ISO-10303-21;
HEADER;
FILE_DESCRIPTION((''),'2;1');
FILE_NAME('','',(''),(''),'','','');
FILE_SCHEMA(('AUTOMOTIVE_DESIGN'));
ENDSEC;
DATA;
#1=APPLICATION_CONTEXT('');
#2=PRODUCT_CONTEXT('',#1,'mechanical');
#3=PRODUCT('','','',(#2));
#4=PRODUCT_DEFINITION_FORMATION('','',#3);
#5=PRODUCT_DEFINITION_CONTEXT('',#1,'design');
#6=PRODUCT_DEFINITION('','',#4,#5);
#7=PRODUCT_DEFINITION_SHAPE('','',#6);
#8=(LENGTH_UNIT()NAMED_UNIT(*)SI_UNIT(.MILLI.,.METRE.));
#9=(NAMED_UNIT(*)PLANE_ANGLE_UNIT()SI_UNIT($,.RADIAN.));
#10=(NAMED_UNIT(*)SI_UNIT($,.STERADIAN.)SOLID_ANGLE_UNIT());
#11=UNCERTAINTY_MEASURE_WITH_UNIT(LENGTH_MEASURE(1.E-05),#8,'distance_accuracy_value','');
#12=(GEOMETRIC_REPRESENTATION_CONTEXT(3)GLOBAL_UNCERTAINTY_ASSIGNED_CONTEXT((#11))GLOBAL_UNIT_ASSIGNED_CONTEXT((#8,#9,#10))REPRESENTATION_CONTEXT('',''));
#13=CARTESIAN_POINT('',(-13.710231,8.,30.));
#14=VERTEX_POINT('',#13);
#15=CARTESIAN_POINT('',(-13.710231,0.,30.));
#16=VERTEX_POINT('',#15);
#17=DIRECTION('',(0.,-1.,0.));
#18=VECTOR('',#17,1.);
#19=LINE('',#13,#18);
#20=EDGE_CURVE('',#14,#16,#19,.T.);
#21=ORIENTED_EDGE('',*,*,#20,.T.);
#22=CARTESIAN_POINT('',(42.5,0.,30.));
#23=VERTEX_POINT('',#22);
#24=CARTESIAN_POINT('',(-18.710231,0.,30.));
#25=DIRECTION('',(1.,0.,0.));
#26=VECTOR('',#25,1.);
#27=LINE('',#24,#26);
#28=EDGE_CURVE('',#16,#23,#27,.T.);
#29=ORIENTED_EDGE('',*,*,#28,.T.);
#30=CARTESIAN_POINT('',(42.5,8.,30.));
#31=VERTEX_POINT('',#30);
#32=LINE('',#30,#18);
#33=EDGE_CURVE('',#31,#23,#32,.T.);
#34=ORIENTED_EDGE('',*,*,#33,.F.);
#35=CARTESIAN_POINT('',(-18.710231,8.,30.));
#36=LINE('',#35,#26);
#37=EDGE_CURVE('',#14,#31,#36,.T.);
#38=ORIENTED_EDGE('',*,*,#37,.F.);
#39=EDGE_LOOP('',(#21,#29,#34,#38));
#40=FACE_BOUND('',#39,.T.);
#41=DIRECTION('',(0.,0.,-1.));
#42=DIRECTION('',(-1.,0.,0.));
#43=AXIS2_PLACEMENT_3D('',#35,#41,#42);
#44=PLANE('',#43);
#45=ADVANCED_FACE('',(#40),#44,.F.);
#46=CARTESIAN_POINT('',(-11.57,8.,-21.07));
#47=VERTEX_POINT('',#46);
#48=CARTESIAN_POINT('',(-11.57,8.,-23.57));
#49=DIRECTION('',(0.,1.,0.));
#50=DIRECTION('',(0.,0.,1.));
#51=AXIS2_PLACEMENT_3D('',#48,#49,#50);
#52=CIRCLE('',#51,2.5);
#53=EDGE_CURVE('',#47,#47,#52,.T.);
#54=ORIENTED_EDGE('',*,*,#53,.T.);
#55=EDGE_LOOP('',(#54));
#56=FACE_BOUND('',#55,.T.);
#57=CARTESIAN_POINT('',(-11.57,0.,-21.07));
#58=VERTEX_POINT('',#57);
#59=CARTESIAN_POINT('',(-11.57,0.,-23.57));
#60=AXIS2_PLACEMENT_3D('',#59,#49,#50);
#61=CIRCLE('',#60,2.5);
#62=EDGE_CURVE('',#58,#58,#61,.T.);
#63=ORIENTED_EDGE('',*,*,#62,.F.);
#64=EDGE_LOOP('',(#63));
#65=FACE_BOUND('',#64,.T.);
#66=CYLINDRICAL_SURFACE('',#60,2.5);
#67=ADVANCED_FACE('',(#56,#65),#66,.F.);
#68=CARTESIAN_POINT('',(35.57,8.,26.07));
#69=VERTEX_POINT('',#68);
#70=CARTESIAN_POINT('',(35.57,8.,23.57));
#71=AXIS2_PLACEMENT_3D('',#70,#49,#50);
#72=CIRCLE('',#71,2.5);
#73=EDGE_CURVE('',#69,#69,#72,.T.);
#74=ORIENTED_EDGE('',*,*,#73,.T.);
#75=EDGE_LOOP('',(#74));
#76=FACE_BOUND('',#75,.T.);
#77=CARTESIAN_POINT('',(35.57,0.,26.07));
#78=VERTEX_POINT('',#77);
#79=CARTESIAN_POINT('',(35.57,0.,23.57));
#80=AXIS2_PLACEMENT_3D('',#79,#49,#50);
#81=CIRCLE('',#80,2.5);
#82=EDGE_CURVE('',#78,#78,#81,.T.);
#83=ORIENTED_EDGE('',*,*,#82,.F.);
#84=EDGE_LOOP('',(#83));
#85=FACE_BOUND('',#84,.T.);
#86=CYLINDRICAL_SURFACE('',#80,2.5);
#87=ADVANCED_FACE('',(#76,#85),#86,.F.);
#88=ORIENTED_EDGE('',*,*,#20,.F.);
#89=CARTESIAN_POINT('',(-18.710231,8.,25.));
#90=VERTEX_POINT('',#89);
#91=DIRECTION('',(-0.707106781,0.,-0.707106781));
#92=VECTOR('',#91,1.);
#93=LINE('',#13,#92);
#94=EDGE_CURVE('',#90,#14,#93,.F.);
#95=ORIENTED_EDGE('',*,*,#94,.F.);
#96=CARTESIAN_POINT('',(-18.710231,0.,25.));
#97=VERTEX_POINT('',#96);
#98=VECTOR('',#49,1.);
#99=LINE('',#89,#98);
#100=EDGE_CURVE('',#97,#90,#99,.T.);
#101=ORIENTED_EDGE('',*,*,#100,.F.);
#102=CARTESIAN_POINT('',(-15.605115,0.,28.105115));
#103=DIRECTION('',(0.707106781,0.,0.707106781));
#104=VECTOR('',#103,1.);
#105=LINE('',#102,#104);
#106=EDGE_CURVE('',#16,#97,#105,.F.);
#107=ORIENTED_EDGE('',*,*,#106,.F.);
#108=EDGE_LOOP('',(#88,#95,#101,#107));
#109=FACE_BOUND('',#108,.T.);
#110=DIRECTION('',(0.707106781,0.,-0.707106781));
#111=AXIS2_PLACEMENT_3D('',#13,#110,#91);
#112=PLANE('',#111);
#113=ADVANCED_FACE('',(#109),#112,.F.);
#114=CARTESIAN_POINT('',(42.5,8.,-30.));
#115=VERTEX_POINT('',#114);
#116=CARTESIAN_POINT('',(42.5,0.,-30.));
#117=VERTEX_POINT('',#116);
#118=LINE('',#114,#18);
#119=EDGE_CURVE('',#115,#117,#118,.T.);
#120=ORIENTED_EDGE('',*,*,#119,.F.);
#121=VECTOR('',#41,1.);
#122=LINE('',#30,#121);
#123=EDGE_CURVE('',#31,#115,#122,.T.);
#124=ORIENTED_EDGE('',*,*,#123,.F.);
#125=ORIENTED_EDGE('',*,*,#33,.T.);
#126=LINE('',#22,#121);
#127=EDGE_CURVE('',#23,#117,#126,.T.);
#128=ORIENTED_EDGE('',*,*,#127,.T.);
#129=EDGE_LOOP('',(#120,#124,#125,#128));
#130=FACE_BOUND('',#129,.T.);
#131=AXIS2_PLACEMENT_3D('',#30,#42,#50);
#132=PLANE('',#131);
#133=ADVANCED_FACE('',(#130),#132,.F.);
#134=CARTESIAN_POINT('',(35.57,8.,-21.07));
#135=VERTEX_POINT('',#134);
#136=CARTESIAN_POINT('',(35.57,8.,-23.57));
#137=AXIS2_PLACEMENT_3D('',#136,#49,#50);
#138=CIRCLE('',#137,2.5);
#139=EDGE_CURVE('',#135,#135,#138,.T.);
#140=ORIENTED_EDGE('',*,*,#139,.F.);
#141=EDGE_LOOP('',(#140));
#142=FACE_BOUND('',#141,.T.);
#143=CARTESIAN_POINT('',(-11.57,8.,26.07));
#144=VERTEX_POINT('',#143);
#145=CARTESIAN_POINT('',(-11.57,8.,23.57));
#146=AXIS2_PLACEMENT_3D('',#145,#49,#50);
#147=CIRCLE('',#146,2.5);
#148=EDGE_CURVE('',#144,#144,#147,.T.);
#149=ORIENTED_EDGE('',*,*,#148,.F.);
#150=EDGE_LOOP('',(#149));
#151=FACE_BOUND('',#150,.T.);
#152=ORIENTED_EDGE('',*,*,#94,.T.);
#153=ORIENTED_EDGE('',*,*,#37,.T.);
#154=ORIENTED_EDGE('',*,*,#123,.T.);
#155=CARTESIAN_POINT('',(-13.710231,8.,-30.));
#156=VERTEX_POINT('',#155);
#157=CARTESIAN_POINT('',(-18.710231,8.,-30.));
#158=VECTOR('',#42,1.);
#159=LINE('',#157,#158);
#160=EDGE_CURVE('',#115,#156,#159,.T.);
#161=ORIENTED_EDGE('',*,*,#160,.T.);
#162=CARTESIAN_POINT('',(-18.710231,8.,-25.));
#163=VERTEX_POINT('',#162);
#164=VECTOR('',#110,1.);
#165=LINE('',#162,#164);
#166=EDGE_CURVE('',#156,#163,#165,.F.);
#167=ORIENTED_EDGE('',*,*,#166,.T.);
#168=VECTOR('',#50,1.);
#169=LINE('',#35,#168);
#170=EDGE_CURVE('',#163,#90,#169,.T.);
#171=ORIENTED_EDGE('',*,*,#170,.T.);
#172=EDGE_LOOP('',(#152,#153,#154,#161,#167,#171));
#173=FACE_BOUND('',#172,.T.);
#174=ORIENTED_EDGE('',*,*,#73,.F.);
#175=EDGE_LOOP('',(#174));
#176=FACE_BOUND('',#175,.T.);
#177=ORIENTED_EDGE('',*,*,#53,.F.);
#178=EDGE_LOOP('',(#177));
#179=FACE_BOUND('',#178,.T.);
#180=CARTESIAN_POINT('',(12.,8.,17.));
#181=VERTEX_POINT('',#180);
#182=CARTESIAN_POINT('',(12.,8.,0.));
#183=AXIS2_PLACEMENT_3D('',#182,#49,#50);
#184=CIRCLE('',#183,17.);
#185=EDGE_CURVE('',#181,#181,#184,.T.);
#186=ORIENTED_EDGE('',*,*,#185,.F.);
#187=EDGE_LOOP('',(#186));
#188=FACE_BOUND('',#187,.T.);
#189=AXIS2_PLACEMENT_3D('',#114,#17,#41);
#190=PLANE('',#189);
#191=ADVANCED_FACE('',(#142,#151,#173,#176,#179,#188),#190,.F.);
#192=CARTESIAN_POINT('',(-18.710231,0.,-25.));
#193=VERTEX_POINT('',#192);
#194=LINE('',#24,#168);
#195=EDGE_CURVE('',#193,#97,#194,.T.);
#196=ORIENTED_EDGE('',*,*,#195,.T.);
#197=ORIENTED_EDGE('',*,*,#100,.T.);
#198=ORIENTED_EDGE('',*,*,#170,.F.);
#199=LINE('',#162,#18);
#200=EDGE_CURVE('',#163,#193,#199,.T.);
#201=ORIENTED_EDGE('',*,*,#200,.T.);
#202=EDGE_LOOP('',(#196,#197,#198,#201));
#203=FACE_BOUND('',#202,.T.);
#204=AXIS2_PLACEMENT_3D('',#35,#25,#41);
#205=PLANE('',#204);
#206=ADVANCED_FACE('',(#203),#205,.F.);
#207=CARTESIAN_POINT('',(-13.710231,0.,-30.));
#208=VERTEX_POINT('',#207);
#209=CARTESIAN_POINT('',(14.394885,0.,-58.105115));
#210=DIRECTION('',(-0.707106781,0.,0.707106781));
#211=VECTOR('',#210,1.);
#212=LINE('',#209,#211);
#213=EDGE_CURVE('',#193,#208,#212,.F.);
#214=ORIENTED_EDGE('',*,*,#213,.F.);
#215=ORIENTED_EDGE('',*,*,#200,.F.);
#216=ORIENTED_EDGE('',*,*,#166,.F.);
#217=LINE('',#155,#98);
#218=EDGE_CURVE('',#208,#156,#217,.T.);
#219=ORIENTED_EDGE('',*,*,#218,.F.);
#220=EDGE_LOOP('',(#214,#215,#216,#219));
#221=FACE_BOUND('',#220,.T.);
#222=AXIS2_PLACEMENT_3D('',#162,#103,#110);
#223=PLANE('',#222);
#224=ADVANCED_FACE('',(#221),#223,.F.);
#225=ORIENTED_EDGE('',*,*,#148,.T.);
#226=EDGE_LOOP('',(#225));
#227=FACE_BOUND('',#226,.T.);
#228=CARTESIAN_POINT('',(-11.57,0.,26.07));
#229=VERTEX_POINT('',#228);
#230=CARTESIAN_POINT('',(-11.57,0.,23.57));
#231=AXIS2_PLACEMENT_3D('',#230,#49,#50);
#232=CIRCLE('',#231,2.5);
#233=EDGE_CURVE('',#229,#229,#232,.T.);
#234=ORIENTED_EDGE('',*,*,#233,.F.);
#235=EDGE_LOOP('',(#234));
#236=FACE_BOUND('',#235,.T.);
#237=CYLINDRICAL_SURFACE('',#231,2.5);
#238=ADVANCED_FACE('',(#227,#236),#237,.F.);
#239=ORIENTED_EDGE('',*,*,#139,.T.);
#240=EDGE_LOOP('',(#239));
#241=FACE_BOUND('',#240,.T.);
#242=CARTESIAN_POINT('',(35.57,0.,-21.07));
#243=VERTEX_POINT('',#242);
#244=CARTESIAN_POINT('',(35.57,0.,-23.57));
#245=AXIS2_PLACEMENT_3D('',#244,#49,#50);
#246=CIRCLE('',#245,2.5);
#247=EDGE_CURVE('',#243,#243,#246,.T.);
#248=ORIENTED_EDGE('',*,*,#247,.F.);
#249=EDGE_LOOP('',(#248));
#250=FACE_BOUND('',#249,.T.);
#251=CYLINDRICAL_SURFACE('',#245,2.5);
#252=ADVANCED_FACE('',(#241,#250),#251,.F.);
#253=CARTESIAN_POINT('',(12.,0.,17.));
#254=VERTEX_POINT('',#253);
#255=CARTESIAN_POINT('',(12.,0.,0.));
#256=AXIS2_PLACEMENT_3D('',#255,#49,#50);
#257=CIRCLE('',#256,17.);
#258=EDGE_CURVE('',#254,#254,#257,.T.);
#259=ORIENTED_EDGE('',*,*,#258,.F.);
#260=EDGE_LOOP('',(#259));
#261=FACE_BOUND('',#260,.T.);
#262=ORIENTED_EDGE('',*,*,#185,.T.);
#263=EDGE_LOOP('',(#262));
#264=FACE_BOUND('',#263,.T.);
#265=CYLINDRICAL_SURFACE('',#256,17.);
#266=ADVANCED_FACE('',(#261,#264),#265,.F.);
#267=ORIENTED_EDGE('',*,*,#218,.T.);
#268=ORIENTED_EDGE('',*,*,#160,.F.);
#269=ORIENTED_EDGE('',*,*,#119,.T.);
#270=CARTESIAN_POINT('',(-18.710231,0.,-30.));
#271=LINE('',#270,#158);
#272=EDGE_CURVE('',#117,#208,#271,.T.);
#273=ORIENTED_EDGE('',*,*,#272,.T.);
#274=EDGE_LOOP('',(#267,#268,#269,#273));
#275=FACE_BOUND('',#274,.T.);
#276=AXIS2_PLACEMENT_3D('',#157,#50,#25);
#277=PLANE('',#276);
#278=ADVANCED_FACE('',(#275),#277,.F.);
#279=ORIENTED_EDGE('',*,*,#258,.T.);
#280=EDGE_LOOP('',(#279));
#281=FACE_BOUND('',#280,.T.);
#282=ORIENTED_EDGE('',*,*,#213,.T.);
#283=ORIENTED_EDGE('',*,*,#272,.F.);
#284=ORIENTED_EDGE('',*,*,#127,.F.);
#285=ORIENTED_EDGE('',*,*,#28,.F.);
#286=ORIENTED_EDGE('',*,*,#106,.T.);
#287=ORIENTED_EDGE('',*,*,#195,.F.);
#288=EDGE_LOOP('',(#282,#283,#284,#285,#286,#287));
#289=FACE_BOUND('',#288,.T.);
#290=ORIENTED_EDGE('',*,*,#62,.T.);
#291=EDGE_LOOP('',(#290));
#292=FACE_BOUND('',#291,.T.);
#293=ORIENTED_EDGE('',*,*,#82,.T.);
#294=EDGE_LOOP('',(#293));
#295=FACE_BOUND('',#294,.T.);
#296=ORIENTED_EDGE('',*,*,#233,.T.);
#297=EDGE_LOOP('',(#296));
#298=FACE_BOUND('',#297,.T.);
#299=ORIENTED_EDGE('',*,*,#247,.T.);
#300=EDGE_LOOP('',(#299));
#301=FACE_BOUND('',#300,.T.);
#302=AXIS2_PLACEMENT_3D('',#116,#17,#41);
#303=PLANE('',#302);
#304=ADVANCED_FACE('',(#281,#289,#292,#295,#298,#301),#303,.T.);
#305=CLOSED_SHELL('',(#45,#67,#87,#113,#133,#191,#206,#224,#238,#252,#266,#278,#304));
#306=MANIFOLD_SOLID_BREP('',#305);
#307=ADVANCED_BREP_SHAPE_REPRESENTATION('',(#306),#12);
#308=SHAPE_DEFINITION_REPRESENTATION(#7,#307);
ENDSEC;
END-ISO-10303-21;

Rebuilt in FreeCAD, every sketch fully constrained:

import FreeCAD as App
import Part
import Sketcher
from FreeCAD import Vector


def edges_at(feature, points):
    """Names of the edges that pass closest to the given points."""
    edges = feature.Shape.Edges
    near = lambda p: min(range(len(edges)), key=lambda i: edges[i].distToShape(Part.Vertex(*p))[0])
    return sorted({f"Edge{near(p) + 1}" for p in points})

doc = App.newDocument("Part")
body = doc.addObject("PartDesign::Body", "Body")

# Sketch on XZ plane
sketch1 = doc.addObject("Sketcher::SketchObject", "Sketch")
body.addObject(sketch1)
sketch1.AttachmentSupport = (doc.XZ_Plane, [""])
sketch1.MapMode = "FlatFace"
sketch1.addGeometry(Part.LineSegment(Vector(-18.710231, -30, 0), Vector(-18.710231, 30, 0)), False)
sketch1.addGeometry(Part.LineSegment(Vector(-18.710231, 30, 0), Vector(42.5, 30, 0)), False)
sketch1.addGeometry(Part.LineSegment(Vector(42.5, 30, 0), Vector(42.5, -30, 0)), False)
sketch1.addGeometry(Part.LineSegment(Vector(42.5, -30, 0), Vector(-18.710231, -30, 0)), False)
sketch1.addConstraint(Sketcher.Constraint("Coincident", 0, 2, 1, 1))
sketch1.addConstraint(Sketcher.Constraint("Coincident", 1, 2, 2, 1))
sketch1.addConstraint(Sketcher.Constraint("Coincident", 2, 2, 3, 1))
sketch1.addConstraint(Sketcher.Constraint("Coincident", 3, 2, 0, 1))
sketch1.addConstraint(Sketcher.Constraint("Vertical", 0))
sketch1.addConstraint(Sketcher.Constraint("Horizontal", 1))
sketch1.addConstraint(Sketcher.Constraint("Vertical", 2))
sketch1.addConstraint(Sketcher.Constraint("Horizontal", 3))
sketch1.addConstraint(Sketcher.Constraint("DistanceY", 0, 1, 0, 2, 60.0))
sketch1.addConstraint(Sketcher.Constraint("DistanceY", -1, 1, 0, 2, 30.0))
sketch1.addConstraint(Sketcher.Constraint("DistanceX", -1, 1, 1, 2, 42.5))
sketch1.addConstraint(Sketcher.Constraint("DistanceX", 1, 1, 1, 2, 61.210231))
pad1 = doc.addObject("PartDesign::Pad", "Pad")
body.addObject(pad1)
pad1.Profile = sketch1
pad1.Length = 8
pad1.Reversed = True
doc.recompute()

chamfer = doc.addObject("PartDesign::Chamfer", "Chamfer")
body.addObject(chamfer)
chamfer.Base = (pad1, edges_at(pad1, [(-18.71, 4, 30), (-18.71, 4, -30)]))
chamfer.Size = 5

# Sketch on XZ plane
sketch2 = doc.addObject("Sketcher::SketchObject", "Sketch001")
body.addObject(sketch2)
sketch2.AttachmentSupport = (doc.XZ_Plane, [""])
sketch2.MapMode = "FlatFace"
sketch2.AttachmentOffset = App.Placement(Vector(0, 0, -8), App.Rotation())
sketch2.addGeometry(Part.Circle(Vector(12, 0, 0), Vector(0, 0, 1), 17), False)
sketch2.addGeometry(Part.Circle(Vector(-11.57, -23.57, 0), Vector(0, 0, 1), 2.5), False)
sketch2.addGeometry(Part.Circle(Vector(35.57, -23.57, 0), Vector(0, 0, 1), 2.5), False)
sketch2.addGeometry(Part.Circle(Vector(-11.57, 23.57, 0), Vector(0, 0, 1), 2.5), False)
sketch2.addGeometry(Part.Circle(Vector(35.57, 23.57, 0), Vector(0, 0, 1), 2.5), False)
sketch2.addConstraint(Sketcher.Constraint("Equal", 1, 2))
sketch2.addConstraint(Sketcher.Constraint("Equal", 2, 3))
sketch2.addConstraint(Sketcher.Constraint("Equal", 3, 4))
sketch2.addConstraint(Sketcher.Constraint("Symmetric", 1, 3, 3, 3, -1))
sketch2.addConstraint(Sketcher.Constraint("Symmetric", 2, 3, 4, 3, -1))
sketch2.addConstraint(Sketcher.Constraint("PointOnObject", 0, 3, -1))
sketch2.addConstraint(Sketcher.Constraint("Horizontal", 1, 3, 2, 3))
sketch2.addConstraint(Sketcher.Constraint("Diameter", 0, 34.0))
sketch2.addConstraint(Sketcher.Constraint("Diameter", 1, 5.0))
sketch2.addConstraint(Sketcher.Constraint("DistanceX", -1, 1, 0, 3, 12.0))
sketch2.addConstraint(Sketcher.Constraint("DistanceX", 1, 3, -1, 1, 11.57))
sketch2.addConstraint(Sketcher.Constraint("DistanceY", 1, 3, -1, 1, 23.57))
sketch2.addConstraint(Sketcher.Constraint("DistanceX", -1, 1, 2, 3, 35.57))
pocket1 = doc.addObject("PartDesign::Pocket", "Pocket")
body.addObject(pocket1)
pocket1.Profile = sketch2
pocket1.Type = "ThroughAll"
pocket1.Reversed = True

doc.recompute()
